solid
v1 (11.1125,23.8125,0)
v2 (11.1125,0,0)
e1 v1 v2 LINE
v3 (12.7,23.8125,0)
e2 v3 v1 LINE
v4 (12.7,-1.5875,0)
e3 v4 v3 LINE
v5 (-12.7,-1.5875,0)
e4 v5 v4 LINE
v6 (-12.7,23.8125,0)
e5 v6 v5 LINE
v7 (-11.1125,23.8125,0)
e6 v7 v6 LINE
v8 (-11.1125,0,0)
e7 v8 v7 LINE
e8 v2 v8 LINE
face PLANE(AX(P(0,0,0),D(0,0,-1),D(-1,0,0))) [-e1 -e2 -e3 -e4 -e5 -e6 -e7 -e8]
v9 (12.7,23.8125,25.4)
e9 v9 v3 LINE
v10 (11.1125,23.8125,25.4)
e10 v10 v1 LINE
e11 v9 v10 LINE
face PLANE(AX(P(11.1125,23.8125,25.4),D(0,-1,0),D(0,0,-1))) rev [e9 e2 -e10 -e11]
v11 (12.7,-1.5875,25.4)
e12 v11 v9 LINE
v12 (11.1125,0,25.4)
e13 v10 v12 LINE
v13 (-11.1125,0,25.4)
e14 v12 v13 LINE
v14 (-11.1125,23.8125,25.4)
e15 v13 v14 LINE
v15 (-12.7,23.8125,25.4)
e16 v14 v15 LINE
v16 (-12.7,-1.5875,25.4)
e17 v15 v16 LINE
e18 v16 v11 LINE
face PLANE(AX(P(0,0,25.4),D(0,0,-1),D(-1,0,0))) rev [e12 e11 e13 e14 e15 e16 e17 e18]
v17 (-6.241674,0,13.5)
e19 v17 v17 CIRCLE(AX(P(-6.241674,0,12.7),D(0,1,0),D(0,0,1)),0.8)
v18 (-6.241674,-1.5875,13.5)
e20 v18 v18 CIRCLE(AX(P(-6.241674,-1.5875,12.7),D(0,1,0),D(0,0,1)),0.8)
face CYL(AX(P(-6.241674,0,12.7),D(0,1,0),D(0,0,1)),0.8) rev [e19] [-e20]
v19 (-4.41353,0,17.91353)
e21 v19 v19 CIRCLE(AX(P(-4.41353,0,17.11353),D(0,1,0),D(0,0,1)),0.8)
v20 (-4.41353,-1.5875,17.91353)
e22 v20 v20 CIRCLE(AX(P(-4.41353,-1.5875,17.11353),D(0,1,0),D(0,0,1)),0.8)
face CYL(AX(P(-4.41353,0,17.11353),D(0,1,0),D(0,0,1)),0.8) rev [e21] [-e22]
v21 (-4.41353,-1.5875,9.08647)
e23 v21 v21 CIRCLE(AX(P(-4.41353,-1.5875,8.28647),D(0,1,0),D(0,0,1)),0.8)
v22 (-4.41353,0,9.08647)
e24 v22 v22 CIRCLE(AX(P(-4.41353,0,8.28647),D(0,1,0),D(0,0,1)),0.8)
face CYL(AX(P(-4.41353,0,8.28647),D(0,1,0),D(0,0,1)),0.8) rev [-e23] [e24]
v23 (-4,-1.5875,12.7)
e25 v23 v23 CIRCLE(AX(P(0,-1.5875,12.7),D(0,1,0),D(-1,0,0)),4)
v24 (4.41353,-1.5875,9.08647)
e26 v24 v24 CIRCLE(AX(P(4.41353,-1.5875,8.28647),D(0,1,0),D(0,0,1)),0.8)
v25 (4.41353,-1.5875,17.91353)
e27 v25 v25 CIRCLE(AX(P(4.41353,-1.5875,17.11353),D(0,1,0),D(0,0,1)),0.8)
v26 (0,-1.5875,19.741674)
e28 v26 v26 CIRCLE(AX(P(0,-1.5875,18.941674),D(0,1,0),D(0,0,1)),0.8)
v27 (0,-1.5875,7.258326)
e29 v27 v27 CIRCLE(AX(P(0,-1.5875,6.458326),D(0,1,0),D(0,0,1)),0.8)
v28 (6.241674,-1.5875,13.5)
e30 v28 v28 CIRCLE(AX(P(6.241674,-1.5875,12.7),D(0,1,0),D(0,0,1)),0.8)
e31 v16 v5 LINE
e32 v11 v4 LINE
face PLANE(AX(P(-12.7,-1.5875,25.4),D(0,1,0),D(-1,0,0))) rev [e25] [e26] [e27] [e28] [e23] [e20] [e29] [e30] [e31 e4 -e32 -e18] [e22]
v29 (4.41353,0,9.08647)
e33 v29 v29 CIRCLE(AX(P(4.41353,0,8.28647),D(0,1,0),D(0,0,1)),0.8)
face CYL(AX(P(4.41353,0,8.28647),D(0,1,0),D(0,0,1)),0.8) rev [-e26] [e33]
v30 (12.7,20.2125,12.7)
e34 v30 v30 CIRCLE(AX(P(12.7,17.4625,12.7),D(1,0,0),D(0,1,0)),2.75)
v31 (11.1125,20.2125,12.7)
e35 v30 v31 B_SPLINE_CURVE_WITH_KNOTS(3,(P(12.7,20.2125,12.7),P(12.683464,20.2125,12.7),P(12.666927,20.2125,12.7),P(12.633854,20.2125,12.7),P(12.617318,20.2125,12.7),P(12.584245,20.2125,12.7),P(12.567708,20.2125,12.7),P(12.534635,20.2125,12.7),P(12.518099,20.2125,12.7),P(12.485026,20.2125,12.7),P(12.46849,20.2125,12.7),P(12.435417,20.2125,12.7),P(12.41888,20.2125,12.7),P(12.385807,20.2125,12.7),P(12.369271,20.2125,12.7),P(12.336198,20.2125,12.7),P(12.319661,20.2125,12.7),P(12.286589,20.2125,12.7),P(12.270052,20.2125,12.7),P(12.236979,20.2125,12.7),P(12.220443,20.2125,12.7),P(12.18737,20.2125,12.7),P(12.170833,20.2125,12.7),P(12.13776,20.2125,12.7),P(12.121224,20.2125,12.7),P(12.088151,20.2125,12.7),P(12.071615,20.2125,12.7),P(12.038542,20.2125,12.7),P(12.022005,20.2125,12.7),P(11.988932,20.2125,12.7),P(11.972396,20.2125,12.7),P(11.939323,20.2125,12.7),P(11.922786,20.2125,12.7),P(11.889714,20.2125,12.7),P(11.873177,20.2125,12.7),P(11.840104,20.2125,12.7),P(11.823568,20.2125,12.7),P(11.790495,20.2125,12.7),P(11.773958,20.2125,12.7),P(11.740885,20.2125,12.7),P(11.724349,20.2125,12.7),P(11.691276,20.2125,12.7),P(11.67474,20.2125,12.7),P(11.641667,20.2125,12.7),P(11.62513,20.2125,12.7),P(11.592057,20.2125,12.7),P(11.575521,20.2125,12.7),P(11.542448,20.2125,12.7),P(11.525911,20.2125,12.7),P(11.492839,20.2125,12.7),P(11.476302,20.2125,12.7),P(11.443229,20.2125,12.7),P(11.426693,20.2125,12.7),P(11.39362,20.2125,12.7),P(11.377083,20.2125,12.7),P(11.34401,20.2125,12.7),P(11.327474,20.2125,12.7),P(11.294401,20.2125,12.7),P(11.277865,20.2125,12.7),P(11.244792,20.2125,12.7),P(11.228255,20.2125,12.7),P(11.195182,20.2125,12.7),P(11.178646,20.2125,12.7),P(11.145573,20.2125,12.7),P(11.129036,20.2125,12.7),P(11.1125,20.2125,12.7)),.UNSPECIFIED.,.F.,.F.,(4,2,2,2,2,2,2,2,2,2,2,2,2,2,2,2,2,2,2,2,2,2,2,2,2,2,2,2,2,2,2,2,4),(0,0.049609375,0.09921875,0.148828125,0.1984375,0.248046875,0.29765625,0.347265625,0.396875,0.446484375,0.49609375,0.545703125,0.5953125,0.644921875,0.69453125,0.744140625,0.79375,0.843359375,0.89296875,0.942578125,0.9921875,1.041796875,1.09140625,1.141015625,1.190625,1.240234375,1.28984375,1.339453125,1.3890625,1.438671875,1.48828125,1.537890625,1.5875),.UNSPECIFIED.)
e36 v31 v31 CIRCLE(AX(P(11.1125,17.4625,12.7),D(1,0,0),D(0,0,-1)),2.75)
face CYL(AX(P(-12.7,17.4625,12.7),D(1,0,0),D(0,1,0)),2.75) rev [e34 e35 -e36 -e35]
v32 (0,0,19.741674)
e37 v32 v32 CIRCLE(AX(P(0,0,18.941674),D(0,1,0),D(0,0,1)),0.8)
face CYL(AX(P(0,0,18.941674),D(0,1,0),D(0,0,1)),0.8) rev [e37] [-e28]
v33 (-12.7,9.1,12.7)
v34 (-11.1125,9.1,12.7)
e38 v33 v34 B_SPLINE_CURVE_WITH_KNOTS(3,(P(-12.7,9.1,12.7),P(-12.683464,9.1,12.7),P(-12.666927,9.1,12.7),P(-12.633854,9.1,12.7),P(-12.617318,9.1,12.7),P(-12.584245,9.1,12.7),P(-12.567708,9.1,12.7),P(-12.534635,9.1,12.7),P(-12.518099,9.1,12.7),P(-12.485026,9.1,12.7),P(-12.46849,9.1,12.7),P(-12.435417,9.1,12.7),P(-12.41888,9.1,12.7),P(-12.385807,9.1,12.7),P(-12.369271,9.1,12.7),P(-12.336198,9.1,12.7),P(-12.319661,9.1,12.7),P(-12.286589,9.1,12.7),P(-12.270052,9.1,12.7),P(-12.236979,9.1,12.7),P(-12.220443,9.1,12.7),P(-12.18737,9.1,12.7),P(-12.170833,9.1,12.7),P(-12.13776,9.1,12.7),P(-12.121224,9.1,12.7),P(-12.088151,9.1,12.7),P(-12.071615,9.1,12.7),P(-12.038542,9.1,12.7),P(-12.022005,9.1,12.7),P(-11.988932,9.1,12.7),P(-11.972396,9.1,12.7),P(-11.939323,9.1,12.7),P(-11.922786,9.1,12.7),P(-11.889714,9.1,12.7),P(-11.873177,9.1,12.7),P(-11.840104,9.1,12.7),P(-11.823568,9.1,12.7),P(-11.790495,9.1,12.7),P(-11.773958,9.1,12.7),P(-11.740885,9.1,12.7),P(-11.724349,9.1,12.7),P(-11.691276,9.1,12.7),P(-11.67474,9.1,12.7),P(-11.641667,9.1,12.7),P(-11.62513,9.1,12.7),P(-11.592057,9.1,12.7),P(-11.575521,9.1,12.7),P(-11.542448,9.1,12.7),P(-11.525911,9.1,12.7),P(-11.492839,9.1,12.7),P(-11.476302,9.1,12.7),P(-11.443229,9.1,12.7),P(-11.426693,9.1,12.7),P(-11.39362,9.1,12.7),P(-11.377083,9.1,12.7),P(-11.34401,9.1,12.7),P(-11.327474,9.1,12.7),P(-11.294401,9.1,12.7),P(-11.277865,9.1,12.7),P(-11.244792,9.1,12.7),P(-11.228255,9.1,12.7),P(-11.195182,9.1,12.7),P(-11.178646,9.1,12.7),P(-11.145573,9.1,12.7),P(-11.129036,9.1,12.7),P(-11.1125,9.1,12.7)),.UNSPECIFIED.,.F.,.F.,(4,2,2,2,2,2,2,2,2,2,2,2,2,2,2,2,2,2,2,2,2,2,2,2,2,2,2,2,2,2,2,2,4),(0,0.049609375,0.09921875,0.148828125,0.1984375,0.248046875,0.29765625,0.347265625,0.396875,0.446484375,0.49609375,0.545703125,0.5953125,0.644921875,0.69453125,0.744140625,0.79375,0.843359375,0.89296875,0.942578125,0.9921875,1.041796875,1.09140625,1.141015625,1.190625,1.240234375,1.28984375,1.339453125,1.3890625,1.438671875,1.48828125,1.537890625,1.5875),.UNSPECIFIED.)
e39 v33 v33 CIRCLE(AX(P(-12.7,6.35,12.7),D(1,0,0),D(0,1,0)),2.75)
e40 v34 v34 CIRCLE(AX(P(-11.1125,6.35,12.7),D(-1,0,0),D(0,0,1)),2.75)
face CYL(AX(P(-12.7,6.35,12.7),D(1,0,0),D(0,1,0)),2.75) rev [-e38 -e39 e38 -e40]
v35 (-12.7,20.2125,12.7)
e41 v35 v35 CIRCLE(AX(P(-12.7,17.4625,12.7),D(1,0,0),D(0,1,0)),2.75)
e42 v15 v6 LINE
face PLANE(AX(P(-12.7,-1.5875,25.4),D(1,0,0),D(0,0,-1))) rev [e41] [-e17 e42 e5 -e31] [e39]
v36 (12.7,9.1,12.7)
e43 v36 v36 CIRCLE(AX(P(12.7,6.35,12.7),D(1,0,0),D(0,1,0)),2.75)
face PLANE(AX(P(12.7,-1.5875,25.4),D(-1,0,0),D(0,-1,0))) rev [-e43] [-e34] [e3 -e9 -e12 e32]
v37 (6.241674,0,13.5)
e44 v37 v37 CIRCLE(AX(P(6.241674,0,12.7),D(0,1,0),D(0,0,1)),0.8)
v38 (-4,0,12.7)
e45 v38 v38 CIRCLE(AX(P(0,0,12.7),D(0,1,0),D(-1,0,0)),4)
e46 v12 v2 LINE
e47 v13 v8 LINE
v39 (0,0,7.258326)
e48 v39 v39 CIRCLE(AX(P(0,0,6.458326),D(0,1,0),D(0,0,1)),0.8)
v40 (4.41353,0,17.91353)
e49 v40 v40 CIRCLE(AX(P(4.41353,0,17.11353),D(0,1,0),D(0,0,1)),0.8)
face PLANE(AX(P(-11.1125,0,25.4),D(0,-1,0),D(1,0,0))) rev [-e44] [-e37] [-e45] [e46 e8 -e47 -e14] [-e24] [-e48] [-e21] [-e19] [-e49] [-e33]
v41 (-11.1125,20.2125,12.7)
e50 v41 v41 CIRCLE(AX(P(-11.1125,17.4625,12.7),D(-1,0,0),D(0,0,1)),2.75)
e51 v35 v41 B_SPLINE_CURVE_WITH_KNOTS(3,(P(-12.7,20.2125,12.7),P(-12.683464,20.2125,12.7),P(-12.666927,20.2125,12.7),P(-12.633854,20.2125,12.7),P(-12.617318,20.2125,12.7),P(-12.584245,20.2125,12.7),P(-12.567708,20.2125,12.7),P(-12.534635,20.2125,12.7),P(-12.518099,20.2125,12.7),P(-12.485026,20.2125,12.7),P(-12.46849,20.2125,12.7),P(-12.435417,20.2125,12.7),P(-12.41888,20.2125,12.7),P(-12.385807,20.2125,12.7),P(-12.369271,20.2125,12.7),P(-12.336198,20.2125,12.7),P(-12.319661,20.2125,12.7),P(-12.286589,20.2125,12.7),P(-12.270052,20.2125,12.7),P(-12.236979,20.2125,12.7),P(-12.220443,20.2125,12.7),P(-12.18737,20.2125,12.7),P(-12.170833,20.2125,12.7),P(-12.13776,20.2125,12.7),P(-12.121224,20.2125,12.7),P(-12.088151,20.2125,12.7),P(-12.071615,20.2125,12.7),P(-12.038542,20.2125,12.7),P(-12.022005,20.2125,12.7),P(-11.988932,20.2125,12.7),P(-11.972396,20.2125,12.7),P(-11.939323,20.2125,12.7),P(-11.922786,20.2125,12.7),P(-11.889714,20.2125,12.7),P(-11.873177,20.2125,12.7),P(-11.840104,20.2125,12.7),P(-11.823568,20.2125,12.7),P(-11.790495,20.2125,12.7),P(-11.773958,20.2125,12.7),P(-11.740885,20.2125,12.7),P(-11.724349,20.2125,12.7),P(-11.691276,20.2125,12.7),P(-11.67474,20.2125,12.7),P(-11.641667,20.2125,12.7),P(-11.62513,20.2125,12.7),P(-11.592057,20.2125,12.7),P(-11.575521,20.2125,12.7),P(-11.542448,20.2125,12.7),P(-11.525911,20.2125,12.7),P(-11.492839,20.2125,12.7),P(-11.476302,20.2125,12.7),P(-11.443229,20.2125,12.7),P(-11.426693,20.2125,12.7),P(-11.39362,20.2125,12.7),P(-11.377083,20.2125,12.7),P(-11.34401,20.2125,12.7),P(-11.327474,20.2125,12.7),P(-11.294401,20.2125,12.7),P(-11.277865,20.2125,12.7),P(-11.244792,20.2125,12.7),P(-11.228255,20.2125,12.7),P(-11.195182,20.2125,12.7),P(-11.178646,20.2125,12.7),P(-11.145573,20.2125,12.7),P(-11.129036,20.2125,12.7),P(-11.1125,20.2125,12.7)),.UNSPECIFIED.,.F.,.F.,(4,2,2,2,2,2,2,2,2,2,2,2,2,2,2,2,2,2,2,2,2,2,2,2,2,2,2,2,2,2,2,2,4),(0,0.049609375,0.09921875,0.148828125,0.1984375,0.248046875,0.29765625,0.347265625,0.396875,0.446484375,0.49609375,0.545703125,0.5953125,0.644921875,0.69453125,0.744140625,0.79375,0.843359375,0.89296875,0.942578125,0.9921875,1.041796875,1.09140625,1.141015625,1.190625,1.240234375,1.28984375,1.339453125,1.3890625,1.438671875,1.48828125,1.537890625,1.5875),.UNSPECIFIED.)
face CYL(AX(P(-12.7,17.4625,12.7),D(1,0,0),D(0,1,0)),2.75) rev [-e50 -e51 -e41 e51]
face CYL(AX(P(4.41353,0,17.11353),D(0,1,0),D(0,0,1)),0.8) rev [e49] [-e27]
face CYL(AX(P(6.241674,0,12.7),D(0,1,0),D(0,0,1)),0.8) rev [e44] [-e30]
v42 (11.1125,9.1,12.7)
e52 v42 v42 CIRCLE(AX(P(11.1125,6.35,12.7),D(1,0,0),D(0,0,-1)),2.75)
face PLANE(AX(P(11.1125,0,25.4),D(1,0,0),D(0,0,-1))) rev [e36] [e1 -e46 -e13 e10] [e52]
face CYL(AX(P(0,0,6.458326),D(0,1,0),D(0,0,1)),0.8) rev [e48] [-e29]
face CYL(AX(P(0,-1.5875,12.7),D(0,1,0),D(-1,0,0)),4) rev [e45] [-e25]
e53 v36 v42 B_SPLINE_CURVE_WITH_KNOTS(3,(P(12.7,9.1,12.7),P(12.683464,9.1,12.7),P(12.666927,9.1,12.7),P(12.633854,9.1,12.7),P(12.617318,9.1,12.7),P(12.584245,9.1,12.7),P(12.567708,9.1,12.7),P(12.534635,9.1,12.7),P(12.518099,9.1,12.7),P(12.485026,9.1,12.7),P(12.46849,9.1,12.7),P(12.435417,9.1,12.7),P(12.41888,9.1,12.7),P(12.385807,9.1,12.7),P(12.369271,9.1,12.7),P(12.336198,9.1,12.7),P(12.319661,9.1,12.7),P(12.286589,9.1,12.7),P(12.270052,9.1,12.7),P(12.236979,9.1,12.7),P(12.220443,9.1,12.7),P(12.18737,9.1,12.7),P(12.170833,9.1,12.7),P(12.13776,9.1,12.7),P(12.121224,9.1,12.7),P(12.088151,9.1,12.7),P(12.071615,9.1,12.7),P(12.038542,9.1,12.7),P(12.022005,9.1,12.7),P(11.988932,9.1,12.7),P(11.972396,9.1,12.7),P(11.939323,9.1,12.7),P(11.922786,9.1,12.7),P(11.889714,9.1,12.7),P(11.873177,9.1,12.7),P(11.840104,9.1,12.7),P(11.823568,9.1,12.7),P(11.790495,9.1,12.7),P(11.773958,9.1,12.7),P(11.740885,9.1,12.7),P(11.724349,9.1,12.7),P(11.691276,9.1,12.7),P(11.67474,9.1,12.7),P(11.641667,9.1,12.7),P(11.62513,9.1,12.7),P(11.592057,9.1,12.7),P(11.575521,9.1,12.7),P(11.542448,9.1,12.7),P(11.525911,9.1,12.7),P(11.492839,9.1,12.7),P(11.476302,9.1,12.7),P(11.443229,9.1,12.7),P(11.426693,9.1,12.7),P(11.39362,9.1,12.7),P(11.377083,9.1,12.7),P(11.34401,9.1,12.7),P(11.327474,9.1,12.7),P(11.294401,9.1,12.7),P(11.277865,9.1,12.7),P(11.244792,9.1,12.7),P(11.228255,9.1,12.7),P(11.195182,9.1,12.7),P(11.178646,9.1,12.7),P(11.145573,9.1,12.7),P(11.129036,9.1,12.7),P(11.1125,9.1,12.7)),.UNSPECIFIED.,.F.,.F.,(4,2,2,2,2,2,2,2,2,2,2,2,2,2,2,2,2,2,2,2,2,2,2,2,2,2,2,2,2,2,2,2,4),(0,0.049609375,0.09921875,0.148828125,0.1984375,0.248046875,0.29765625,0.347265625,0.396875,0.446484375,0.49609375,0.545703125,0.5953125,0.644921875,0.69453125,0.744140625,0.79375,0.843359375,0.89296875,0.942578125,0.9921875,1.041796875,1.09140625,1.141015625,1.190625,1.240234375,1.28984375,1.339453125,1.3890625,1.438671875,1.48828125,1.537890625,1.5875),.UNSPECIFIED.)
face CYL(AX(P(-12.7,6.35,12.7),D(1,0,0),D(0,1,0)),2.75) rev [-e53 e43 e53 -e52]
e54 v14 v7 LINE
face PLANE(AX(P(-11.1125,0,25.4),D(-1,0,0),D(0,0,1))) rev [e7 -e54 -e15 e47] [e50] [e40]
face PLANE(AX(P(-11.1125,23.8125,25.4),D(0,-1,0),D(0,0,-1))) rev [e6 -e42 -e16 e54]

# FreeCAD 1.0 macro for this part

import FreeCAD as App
import Part
import Sketcher

V = App.Vector
Q = App.Units.Quantity

doc = App.newDocument("Part")
body = doc.addObject("PartDesign::Body", "Body")

sketch1 = body.newObject("Sketcher::SketchObject", "Sketch")
sketch1.AttachmentSupport = (doc.getObject("XY_Plane"), [""])
sketch1.MapMode = "FlatFace"
sketch1.addGeometry([
    Part.LineSegment(V(11.1, 0, 0), V(-11.1, 0, 0)),
    Part.LineSegment(V(-11.1, 0, 0), V(-11.1, 23.8, 0)),
    Part.LineSegment(V(-11.1, 23.8, 0), V(-12.7, 23.8, 0)),
    Part.LineSegment(V(-12.7, 23.8, 0), V(-12.7, -1.6, 0)),
    Part.LineSegment(V(-12.7, -1.6, 0), V(12.7, -1.6, 0)),
    Part.LineSegment(V(12.7, -1.6, 0), V(12.7, 23.8, 0)),
    Part.LineSegment(V(12.7, 23.8, 0), V(11.1, 23.8, 0)),
    Part.LineSegment(V(11.1, 23.8, 0), V(11.1, 0, 0)),
], False)
sketch1.addConstraint([
    Sketcher.Constraint("Coincident", 0, 2, 1, 1),
    Sketcher.Constraint("Coincident", 1, 2, 2, 1),
    Sketcher.Constraint("Coincident", 2, 2, 3, 1),
    Sketcher.Constraint("Coincident", 3, 2, 4, 1),
    Sketcher.Constraint("Coincident", 4, 2, 5, 1),
    Sketcher.Constraint("Coincident", 5, 2, 6, 1),
    Sketcher.Constraint("Coincident", 6, 2, 7, 1),
    Sketcher.Constraint("Coincident", 7, 2, 0, 1),
    Sketcher.Constraint("Horizontal", 0),
    Sketcher.Constraint("Vertical", 1),
    Sketcher.Constraint("Horizontal", 2),
    Sketcher.Constraint("Vertical", 3),
    Sketcher.Constraint("Horizontal", 4),
    Sketcher.Constraint("Vertical", 5),
    Sketcher.Constraint("Horizontal", 6),
    Sketcher.Constraint("Vertical", 7),
    Sketcher.Constraint("Symmetric", 0, 2, 7, 2, -1, 1),
    Sketcher.Constraint("Symmetric", 2, 2, 5, 2, -2),
    Sketcher.Constraint("Equal", 4, 3),
    Sketcher.Constraint("DistanceX", 4, 1, 4, 2, Q("1 in")),
    Sketcher.Constraint("DistanceX", 0, 2, 0, 1, Q("0.875 in")),
    Sketcher.Constraint("DistanceY", 1, 1, 1, 2, Q("0.9375 in")),
])
pad1 = body.newObject("PartDesign::Pad", "Pad")
pad1.Profile = sketch1
pad1.Length = Q("1 in")

sketch2 = body.newObject("Sketcher::SketchObject", "Sketch001")
sketch2.AttachmentSupport = (doc.getObject("YZ_Plane"), [""])
sketch2.MapMode = "FlatFace"
sketch2.AttachmentOffset = App.Placement(V(0, 0, 0.5 * 25.4), App.Rotation())
sketch2.addGeometry([
    Part.Circle(V(17.5, 12.7, 0), V(0, 0, 1), 2.8),
    Part.Circle(V(6.3, 12.7, 0), V(0, 0, 1), 2.8),
], False)
sketch2.addConstraint([
    Sketcher.Constraint("Equal", 0, 1),
    Sketcher.Constraint("Horizontal", 0, 3, 1, 3),
    Sketcher.Constraint("DistanceY", -1, 1, 0, 3, Q("0.5 in")),
    Sketcher.Constraint("Diameter", 0, 5.5),
    Sketcher.Constraint("DistanceX", -1, 1, 1, 3, Q("0.25 in")),
    Sketcher.Constraint("DistanceX", -1, 1, 0, 3, Q("0.6875 in")),
])
pocket1 = body.newObject("PartDesign::Pocket", "Pocket")
pocket1.Profile = sketch2
pocket1.Type = "ThroughAll"

sketch3 = body.newObject("Sketcher::SketchObject", "Sketch002")
sketch3.AttachmentSupport = (doc.getObject("XZ_Plane"), [""])
sketch3.MapMode = "FlatFace"
sketch3.addGeometry(Part.Circle(V(0, 12.7, 0), V(0, 0, 1), 4), False)
sketch3.addConstraint([
    Sketcher.Constraint("PointOnObject", 0, 3, -2),
    Sketcher.Constraint("DistanceY", -1, 1, 0, 3, Q("0.5 in")),
    Sketcher.Constraint("Diameter", 0, 8.0),
])
pocket2 = body.newObject("PartDesign::Pocket", "Pocket001")
pocket2.Profile = sketch3
pocket2.Type = "ThroughAll"
pocket2.Reversed = True

sketch4 = body.newObject("Sketcher::SketchObject", "Sketch003")
sketch4.AttachmentSupport = (doc.getObject("XZ_Plane"), [""])
sketch4.MapMode = "FlatFace"
sketch4.addGeometry([
    Part.Circle(V(0, 6.5, 0), V(0, 0, 1), 0.8),
    Part.Circle(V(4.4, 8.3, 0), V(0, 0, 1), 0.8),
    Part.Circle(V(6.2, 12.7, 0), V(0, 0, 1), 0.8),
    Part.Circle(V(4.4, 17.1, 0), V(0, 0, 1), 0.8),
    Part.Circle(V(0, 18.9, 0), V(0, 0, 1), 0.8),
    Part.Circle(V(-4.4, 17.1, 0), V(0, 0, 1), 0.8),
    Part.Circle(V(-6.2, 12.7, 0), V(0, 0, 1), 0.8),
    Part.Circle(V(-4.4, 8.3, 0), V(0, 0, 1), 0.8),
], False)
sketch4.addConstraint([
    Sketcher.Constraint("Equal", 0, 1),
    Sketcher.Constraint("Equal", 1, 2),
    Sketcher.Constraint("Equal", 2, 3),
    Sketcher.Constraint("Equal", 3, 4),
    Sketcher.Constraint("Equal", 4, 5),
    Sketcher.Constraint("Equal", 5, 6),
    Sketcher.Constraint("Equal", 6, 7),
    Sketcher.Constraint("Symmetric", 3, 3, 5, 3, -2),
    Sketcher.Constraint("Symmetric", 2, 3, 6, 3, -2),
    Sketcher.Constraint("Symmetric", 1, 3, 7, 3, -2),
    Sketcher.Constraint("PointOnObject", 0, 3, -2),
    Sketcher.Constraint("PointOnObject", 4, 3, -2),
    Sketcher.Constraint("Vertical", 1, 3, 3, 3),
    Sketcher.Constraint("DistanceY", -1, 1, 2, 3, Q("0.5 in")),
    Sketcher.Constraint("Diameter", 0, 1.6),
    Sketcher.Constraint("DistanceX", -1, 1, 1, 3, 4.41353),
    Sketcher.Constraint("DistanceY", -1, 1, 1, 3, 8.28647),
    Sketcher.Constraint("DistanceY", -1, 1, 3, 3, 17.11353),
    Sketcher.Constraint("DistanceY", -1, 1, 0, 3, 6.458326),
    Sketcher.Constraint("DistanceX", -1, 1, 2, 3, 6.241674),
    Sketcher.Constraint("DistanceY", -1, 1, 4, 3, 18.941674),
])
doc.recompute()
hole = body.newObject("PartDesign::Hole", "Hole")
hole.Profile = sketch4
hole.ThreadType = "None"
hole.Diameter = 1.6
hole.DepthType = "ThroughAll"
hole.Reversed = True

doc.recompute()
